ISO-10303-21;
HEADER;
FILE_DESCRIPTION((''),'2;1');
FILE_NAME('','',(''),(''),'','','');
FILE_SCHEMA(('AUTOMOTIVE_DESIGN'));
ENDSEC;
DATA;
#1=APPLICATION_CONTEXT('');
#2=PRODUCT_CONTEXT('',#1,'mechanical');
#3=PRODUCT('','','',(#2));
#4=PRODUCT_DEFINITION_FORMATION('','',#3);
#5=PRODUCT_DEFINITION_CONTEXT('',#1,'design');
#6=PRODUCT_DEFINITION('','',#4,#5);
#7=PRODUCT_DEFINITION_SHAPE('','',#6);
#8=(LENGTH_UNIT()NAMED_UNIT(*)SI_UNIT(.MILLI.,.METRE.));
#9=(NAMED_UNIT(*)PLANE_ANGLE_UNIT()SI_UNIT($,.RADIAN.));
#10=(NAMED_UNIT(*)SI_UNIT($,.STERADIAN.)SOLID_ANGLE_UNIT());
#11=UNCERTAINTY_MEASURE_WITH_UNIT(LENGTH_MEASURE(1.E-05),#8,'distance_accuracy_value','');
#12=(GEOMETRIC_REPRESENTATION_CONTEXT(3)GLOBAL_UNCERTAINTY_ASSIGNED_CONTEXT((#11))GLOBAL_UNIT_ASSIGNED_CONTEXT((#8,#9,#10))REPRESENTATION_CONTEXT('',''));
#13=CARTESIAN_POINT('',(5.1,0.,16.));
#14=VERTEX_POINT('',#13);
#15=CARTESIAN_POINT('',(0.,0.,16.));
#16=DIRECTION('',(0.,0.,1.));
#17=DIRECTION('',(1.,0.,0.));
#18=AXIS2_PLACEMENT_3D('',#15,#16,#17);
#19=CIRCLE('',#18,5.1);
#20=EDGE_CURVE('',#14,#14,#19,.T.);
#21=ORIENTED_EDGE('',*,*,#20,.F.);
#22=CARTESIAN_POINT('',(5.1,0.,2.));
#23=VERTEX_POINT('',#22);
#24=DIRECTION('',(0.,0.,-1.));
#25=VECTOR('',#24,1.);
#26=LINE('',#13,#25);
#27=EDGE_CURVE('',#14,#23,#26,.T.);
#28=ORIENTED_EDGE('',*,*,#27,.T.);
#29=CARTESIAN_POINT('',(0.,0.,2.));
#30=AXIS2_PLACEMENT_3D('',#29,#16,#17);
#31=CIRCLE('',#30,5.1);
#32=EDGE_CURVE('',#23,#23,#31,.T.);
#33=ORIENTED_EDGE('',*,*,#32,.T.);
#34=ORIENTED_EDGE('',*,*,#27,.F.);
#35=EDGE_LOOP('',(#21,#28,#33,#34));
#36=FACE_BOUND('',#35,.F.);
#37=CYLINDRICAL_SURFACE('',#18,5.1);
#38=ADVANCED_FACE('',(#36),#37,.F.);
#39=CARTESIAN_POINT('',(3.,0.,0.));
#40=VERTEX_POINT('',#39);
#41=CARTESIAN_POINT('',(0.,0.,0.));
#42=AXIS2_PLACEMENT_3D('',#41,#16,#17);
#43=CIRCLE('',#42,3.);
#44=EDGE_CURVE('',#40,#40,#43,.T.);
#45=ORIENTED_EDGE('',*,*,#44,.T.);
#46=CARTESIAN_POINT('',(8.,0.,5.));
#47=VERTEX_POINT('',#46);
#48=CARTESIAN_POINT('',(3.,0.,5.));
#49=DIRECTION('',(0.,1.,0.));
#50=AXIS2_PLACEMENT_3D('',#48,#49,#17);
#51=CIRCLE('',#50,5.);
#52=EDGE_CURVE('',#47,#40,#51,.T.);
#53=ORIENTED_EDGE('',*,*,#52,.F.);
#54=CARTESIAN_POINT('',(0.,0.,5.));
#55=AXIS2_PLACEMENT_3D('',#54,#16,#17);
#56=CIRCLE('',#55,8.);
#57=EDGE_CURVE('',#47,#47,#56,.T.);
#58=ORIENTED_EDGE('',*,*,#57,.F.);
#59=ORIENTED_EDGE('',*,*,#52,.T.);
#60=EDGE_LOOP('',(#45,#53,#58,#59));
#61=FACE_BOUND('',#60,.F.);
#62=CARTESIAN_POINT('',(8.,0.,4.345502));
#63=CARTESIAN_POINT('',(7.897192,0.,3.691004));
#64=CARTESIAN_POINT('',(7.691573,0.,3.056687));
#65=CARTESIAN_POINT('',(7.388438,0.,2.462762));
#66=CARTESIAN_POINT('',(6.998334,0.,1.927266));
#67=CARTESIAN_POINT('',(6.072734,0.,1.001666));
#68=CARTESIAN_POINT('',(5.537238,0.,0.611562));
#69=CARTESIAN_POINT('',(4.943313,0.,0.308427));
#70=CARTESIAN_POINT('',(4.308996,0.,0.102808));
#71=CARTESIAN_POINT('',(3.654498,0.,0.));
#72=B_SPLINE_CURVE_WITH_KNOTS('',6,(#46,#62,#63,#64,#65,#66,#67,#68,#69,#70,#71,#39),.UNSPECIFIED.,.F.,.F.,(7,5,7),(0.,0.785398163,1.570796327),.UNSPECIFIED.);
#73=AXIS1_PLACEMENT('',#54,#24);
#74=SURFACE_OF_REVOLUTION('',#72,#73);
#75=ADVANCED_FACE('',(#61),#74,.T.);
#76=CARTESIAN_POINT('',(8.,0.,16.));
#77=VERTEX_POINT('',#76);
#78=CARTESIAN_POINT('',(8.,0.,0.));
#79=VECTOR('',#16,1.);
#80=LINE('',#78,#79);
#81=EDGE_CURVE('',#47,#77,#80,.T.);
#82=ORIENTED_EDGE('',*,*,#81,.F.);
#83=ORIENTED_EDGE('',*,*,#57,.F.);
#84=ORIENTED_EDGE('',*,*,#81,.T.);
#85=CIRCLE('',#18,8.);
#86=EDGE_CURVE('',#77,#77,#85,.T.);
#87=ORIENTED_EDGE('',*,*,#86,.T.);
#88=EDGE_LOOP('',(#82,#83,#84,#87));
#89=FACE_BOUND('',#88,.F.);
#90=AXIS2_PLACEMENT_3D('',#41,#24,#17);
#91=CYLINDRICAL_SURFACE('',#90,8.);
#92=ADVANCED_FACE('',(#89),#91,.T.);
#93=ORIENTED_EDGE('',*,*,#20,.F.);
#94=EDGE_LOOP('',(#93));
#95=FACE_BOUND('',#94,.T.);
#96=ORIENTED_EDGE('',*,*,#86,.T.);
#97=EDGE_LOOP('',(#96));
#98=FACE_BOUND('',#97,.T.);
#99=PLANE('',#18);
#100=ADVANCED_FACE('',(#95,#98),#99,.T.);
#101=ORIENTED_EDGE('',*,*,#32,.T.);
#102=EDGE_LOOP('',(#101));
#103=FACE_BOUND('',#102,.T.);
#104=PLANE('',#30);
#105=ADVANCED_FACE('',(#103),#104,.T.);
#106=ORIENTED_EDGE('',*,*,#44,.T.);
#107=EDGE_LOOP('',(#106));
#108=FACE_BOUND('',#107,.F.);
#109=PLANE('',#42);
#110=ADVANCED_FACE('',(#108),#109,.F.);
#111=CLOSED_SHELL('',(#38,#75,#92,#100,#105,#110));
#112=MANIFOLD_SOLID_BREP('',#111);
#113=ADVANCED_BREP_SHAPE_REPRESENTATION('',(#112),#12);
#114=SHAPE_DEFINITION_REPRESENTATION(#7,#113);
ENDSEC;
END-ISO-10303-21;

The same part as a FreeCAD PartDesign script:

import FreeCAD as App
import Part
import Sketcher

V = App.Vector


def edges_at(feature, points):
    """Names of the edges that pass closest to the given points."""
    edges = feature.Shape.Edges
    near = lambda p: min(range(len(edges)), key=lambda i: edges[i].distToShape(Part.Vertex(*p))[0])
    return sorted({f"Edge{near(p) + 1}" for p in points})

doc = App.newDocument("Part")
body = doc.addObject("PartDesign::Body", "Body")

# Sketch on XY plane
sketch1 = body.newObject("Sketcher::SketchObject", "Sketch")
sketch1.AttachmentSupport = (doc.getObject("XY_Plane"), [""])
sketch1.MapMode = "FlatFace"
sketch1.addGeometry(Part.Circle(V(0, 0, 0), V(0, 0, 1), 8), False)
sketch1.addConstraint([
    Sketcher.Constraint("Coincident", 0, 3, -1, 1),
    Sketcher.Constraint("Diameter", 0, 16.0),
])
pad1 = body.newObject("PartDesign::Pad", "Pad")
pad1.Profile = sketch1
pad1.Length = 16

# Sketch on XY plane
sketch2 = body.newObject("Sketcher::SketchObject", "Sketch001")
sketch2.AttachmentSupport = (doc.getObject("XY_Plane"), [""])
sketch2.MapMode = "FlatFace"
sketch2.AttachmentOffset = App.Placement(V(0, 0, 16), App.Rotation())
sketch2.addGeometry(Part.Circle(V(0, 0, 0), V(0, 0, 1), 5), False)
sketch2.addConstraint([
    Sketcher.Constraint("Coincident", 0, 3, -1, 1),
    Sketcher.Constraint("Diameter", 0, 10.2),
])
pocket1 = body.newObject("PartDesign::Pocket", "Pocket")
pocket1.Profile = sketch2
pocket1.Length = 14
doc.recompute()

fillet = body.newObject("PartDesign::Fillet", "Fillet")
fillet.Base = (pocket1, edges_at(pocket1, [(-8, 0, 0)]))
fillet.Radius = 5

doc.recompute()
